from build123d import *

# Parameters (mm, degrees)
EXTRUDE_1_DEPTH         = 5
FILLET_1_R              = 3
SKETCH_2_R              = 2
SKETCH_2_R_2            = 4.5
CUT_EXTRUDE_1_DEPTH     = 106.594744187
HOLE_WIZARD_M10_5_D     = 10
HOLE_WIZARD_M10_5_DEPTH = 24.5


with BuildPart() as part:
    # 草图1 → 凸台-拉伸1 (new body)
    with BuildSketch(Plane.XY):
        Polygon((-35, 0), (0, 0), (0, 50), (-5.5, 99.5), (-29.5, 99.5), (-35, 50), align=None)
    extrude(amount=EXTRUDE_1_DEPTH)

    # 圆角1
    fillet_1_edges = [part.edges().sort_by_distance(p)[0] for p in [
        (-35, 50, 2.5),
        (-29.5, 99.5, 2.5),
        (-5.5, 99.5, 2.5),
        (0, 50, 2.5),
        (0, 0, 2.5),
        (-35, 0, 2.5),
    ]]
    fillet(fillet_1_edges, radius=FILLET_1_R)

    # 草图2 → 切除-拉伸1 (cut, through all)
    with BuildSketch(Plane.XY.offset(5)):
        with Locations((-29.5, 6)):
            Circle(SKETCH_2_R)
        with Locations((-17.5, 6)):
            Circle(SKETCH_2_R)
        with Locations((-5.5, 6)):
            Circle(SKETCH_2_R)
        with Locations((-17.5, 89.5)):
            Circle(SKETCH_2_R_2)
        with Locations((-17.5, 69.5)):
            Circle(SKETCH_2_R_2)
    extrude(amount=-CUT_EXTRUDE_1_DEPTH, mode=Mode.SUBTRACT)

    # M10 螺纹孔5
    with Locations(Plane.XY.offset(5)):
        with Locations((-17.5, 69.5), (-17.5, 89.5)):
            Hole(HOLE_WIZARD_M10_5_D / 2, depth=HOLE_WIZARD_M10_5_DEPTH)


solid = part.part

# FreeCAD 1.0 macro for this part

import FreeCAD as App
import Part
import Sketcher
from FreeCAD import Vector
Q = App.Units.Quantity


def edges_at(feature, points):
    """Names of the edges that pass closest to the given points."""
    edges = feature.Shape.Edges
    near = lambda p: min(range(len(edges)), key=lambda i: edges[i].distToShape(Part.Vertex(*p))[0])
    return sorted({f"Edge{near(p) + 1}" for p in points})


def add_polygon(sketch, points):
    """Adds a closed chain of lines whose ends are joined by coincident constraints."""
    first, n = sketch.GeometryCount, len(points)
    for a, b in zip(points, points[1:] + points[:1]):
        sketch.addGeometry(Part.LineSegment(App.Vector(*a, 0), App.Vector(*b, 0)), False)
    for i in range(n):
        sketch.addConstraint(Sketcher.Constraint("Coincident", first + i, 2, first + (i + 1) % n, 1))

doc = App.newDocument("Part")
body = doc.addObject("PartDesign::Body", "Body")

# Sketch on XY plane
sketch1 = body.newObject("Sketcher::SketchObject", "Sketch")
sketch1.AttachmentSupport = (doc.getObject("XY_Plane"), [""])
sketch1.MapMode = "FlatFace"
add_polygon(sketch1, [(-35, 0), (0, 0), (0, 50), (-6, 100), (-30, 100), (-35, 50)])  # lines 0-5
sketch1.addConstraint([
    Sketcher.Constraint("Horizontal", 0),
    Sketcher.Constraint("Vertical", 1),
    Sketcher.Constraint("Horizontal", 3),
    Sketcher.Constraint("Vertical", 5),
    Sketcher.Constraint("Coincident", 0, 2, -1, 1),
    Sketcher.Constraint("Horizontal", 1, 2, 4, 2),
    Sketcher.Constraint("Equal", 2, 4),
    Sketcher.Constraint("DistanceX", 0, 1, 0, 2, Q("35 mm")),
    Sketcher.Constraint("DistanceX", 3, 2, 3, 1, Q("24 mm")),
    Sketcher.Constraint("DistanceY", 1, 1, 1, 2, Q("50 mm")),
    Sketcher.Constraint("DistanceY", -1, 1, 2, 2, Q("99.5 mm")),
])
pad1 = body.newObject("PartDesign::Pad", "Pad")
pad1.Profile = sketch1
pad1.Length = 5
doc.recompute()

fillet = body.newObject("PartDesign::Fillet", "Fillet")
fillet.Base = (pad1, edges_at(pad1, [
    (-35, 50, 2.5),
    (-29.5, 99.5, 2.5),
    (-5.5, 99.5, 2.5),
    (0, 50, 2.5),
    (0, 0, 2.5),
    (-35, 0, 2.5),
]))
fillet.Radius = 3

# Sketch on XY plane
sketch2 = body.newObject("Sketcher::SketchObject", "Sketch001")
sketch2.AttachmentSupport = (doc.getObject("XY_Plane"), [""])
sketch2.MapMode = "FlatFace"
sketch2.AttachmentOffset = App.Placement(Vector(0, 0, 5), App.Rotation())
sketch2.addGeometry([
    Part.Circle(Vector(-29.5, 6, 0), Vector(0, 0, 1), 2),  # 0
    Part.Circle(Vector(-17.5, 6, 0), Vector(0, 0, 1), 2),  # 1
    Part.Circle(Vector(-5.5, 6, 0), Vector(0, 0, 1), 2),  # 2
    Part.Circle(Vector(-17.5, 89.5, 0), Vector(0, 0, 1), 4.5),  # 3
    Part.Circle(Vector(-17.5, 69.5, 0), Vector(0, 0, 1), 4.5),  # 4
], False)
sketch2.addConstraint([
    Sketcher.Constraint("Equal", 0, 1),
    Sketcher.Constraint("Equal", 1, 2),
    Sketcher.Constraint("Equal", 3, 4),
    Sketcher.Constraint("Horizontal", 0, 3, 1, 3),
    Sketcher.Constraint("Horizontal", 1, 3, 2, 3),
    Sketcher.Constraint("Vertical", 1, 3, 3, 3),
    Sketcher.Constraint("Vertical", 3, 3, 4, 3),
    Sketcher.Constraint("Diameter", 0, Q("4 mm")),
    Sketcher.Constraint("Diameter", 3, Q("9 mm")),
    Sketcher.Constraint("DistanceY", -1, 1, 0, 3, Q("6 mm")),
    Sketcher.Constraint("DistanceX", 0, 3, 1, 3, Q("12 mm")),
    Sketcher.Constraint("DistanceX", 1, 3, 2, 3, Q("12 mm")),
    Sketcher.Constraint("DistanceY", 4, 3, 3, 3, Q("20 mm")),
    Sketcher.Constraint("DistanceX", 0, 3, -1, 1, Q("29.5 mm")),
    Sketcher.Constraint("DistanceY", -1, 1, 3, 3, Q("89.5 mm")),
])
pocket1 = body.newObject("PartDesign::Pocket", "Pocket")
pocket1.Profile = sketch2
pocket1.Type = "ThroughAll"

# Sketch on XY plane
sketch3 = body.newObject("Sketcher::SketchObject", "Sketch002")
sketch3.AttachmentSupport = (doc.getObject("XY_Plane"), [""])
sketch3.MapMode = "FlatFace"
sketch3.AttachmentOffset = App.Placement(Vector(0, 0, 5), App.Rotation())
sketch3.addGeometry([
    Part.Circle(Vector(-18, 70, 0), Vector(0, 0, 1), 5),
    Part.Circle(Vector(-18, 90, 0), Vector(0, 0, 1), 5),
], False)
sketch3.addConstraint([
    Sketcher.Constraint("Equal", 0, 1),
    Sketcher.Constraint("Vertical", 0, 3, 1, 3),
    Sketcher.Constraint("Diameter", 0, Q("10 mm")),
    Sketcher.Constraint("DistanceY", 0, 3, 1, 3, Q("20 mm")),
    Sketcher.Constraint("DistanceX", 0, 3, -1, 1, Q("17.5 mm")),
    Sketcher.Constraint("DistanceY", -1, 1, 0, 3, Q("69.5 mm")),
])
doc.recompute()
hole = body.newObject("PartDesign::Hole", "Hole")
hole.Profile = sketch3
hole.ThreadType = "None"
hole.Diameter = 10
hole.DepthType = "Dimension"
hole.Depth = 24.5
hole.DrillPoint = "Flat"

doc.recompute()
